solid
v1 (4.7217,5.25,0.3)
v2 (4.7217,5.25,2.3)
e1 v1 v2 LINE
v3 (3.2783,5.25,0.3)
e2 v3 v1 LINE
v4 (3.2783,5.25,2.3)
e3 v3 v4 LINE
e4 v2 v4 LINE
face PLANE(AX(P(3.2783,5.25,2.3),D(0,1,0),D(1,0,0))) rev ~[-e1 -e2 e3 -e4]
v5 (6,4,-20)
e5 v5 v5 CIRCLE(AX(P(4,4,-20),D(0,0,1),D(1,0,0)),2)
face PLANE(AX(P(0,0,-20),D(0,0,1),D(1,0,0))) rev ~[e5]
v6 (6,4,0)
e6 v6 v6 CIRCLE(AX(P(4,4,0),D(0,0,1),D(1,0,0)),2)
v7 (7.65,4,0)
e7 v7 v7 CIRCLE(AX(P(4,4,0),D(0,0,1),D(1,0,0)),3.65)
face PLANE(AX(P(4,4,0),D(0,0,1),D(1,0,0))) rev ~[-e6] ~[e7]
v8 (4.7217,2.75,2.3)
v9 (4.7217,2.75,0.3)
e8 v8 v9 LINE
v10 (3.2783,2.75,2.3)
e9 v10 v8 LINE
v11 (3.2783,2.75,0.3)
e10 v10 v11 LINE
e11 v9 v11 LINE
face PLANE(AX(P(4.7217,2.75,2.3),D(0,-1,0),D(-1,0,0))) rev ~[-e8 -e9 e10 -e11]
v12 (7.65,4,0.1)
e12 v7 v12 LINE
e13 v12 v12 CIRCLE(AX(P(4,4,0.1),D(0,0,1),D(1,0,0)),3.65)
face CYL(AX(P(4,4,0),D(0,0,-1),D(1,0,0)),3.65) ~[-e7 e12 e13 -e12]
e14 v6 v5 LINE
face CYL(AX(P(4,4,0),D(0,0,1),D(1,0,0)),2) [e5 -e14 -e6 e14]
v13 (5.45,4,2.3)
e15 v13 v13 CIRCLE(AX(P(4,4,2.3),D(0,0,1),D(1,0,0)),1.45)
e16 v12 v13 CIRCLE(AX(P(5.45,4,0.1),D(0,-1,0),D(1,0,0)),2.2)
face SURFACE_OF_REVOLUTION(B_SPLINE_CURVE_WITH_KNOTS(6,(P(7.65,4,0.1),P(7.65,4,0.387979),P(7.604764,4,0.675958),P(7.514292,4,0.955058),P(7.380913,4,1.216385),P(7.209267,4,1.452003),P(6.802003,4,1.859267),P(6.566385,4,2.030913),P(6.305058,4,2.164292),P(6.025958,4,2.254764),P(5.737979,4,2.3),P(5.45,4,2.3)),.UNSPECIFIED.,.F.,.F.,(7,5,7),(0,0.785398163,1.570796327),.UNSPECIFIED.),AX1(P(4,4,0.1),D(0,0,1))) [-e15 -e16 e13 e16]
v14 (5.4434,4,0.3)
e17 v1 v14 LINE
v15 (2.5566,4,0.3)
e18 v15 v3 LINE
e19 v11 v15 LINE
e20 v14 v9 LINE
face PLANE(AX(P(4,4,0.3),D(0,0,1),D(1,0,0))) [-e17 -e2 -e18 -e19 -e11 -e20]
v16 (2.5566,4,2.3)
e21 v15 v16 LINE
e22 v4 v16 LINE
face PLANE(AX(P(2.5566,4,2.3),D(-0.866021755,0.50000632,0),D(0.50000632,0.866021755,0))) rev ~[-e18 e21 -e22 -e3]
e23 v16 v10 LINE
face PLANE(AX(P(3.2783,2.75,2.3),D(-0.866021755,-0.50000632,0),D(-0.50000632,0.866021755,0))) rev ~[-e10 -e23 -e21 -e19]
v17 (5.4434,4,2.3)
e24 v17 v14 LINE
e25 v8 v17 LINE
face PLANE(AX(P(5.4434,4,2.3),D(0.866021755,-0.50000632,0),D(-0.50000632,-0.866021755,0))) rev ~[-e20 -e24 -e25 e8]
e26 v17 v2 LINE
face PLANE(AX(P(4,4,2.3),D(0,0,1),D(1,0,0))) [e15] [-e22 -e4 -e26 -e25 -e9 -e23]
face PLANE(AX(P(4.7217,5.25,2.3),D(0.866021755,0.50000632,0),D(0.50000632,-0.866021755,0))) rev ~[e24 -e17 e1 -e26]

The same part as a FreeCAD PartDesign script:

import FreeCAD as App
import Part
import Sketcher

V = App.Vector
Q = App.Units.Quantity


def edges_at(feature, points):
    """Names of the edges that pass closest to the given points."""
    edges = feature.Shape.Edges
    near = lambda p: min(range(len(edges)), key=lambda i: edges[i].distToShape(Part.Vertex(*p))[0])
    return sorted({f"Edge{near(p) + 1}" for p in points})


def add_polygon(sketch, points):
    """Adds a closed chain of lines whose ends are joined by coincident constraints."""
    first, n = sketch.GeometryCount, len(points)
    for a, b in zip(points, points[1:] + points[:1]):
        sketch.addGeometry(Part.LineSegment(App.Vector(*a, 0), App.Vector(*b, 0)), False)
    for i in range(n):
        sketch.addConstraint(Sketcher.Constraint("Coincident", first + i, 2, first + (i + 1) % n, 1))

doc = App.newDocument("Part")
body = doc.addObject("PartDesign::Body", "Body")

sketch1 = body.newObject("Sketcher::SketchObject", "Sketch")
sketch1.AttachmentSupport = (doc.getObject("XY_Plane"), [""])
sketch1.MapMode = "FlatFace"
sketch1.addGeometry(Part.Circle(V(4, 4, 0), V(0, 0, 1), 2), False)
sketch1.addConstraint([
    Sketcher.Constraint("Diameter", 0, 4.0),
    Sketcher.Constraint("DistanceX", -1, 1, 0, 3, 4.0),
    Sketcher.Constraint("DistanceY", -1, 1, 0, 3, 4.0),
])
pad1 = body.newObject("PartDesign::Pad", "Pad")
pad1.Profile = sketch1
pad1.Length = 20
pad1.Reversed = True

sketch2 = body.newObject("Sketcher::SketchObject", "Sketch001")
sketch2.AttachmentSupport = (doc.getObject("XY_Plane"), [""])
sketch2.MapMode = "FlatFace"
sketch2.addGeometry(Part.Circle(V(4, 4, 0), V(0, 0, 1), 3.6), False)
sketch2.addConstraint([
    Sketcher.Constraint("Diameter", 0, 7.3),
    Sketcher.Constraint("DistanceX", -1, 1, 0, 3, 4.0),
    Sketcher.Constraint("DistanceY", -1, 1, 0, 3, 4.0),
])
pad2 = body.newObject("PartDesign::Pad", "Pad001")
pad2.Profile = sketch2
pad2.Length = 2.3
doc.recompute()

fillet = body.newObject("PartDesign::Fillet", "Fillet")
fillet.Base = (pad2, edges_at(pad2, [(0.35, 4, 2.3)]))
fillet.Radius = 2.2

sketch3 = body.newObject("Sketcher::SketchObject", "Sketch002")
sketch3.AttachmentSupport = (doc.getObject("XY_Plane"), [""])
sketch3.MapMode = "FlatFace"
sketch3.AttachmentOffset = App.Placement(V(0, 0, 2.3), App.Rotation())
add_polygon(sketch3, [(5.4, 4), (4.7, 5.2), (3.3, 5.2), (2.6, 4), (3.3, 2.8), (4.7, 2.8)])
sketch3.addConstraint([
    Sketcher.Constraint("Horizontal", 1),
    Sketcher.Constraint("Horizontal", 4),
    Sketcher.Constraint("Parallel", 0, 3),
    Sketcher.Constraint("Parallel", 2, 5),
    Sketcher.Constraint("Horizontal", 2, 2, 5, 2),
    Sketcher.Constraint("Vertical", 1, 2, 3, 2),
    Sketcher.Constraint("Vertical", 0, 2, 4, 2),
    Sketcher.Constraint("DistanceY", 3, 2, 1, 2, 2.5),
    Sketcher.Constraint("Angle", 0, Q("120.0004 deg")),
    Sketcher.Constraint("DistanceY", -1, 1, 2, 2, 4.0),
    Sketcher.Constraint("DistanceX", 1, 2, 1, 1, 1.4434),
    Sketcher.Constraint("DistanceX", -1, 1, 0, 2, 4.7217),
])
pocket1 = body.newObject("PartDesign::Pocket", "Pocket")
pocket1.Profile = sketch3
pocket1.Length = 4
pocket1.Midplane = True

doc.recompute()
